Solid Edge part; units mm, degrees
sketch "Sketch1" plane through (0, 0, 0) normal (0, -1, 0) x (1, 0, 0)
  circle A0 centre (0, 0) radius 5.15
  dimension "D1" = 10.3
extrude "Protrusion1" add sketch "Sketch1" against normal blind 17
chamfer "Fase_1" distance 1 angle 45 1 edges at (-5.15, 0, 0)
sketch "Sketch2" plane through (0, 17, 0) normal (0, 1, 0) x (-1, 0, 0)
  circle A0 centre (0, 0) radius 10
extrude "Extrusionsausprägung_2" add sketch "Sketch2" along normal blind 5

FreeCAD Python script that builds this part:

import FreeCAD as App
import Part
import Sketcher
from FreeCAD import Vector
Q = App.Units.Quantity


def edges_at(feature, points):
    """Names of the edges that pass closest to the given points."""
    edges = feature.Shape.Edges
    near = lambda p: min(range(len(edges)), key=lambda i: edges[i].distToShape(Part.Vertex(*p))[0])
    return sorted({f"Edge{near(p) + 1}" for p in points})

doc = App.newDocument("Part")
body = doc.addObject("PartDesign::Body", "Body")

# Sketch on XZ plane
sketch1 = doc.addObject("Sketcher::SketchObject", "Sketch")
body.addObject(sketch1)
sketch1.AttachmentSupport = (doc.XZ_Plane, [""])
sketch1.MapMode = "FlatFace"
sketch1.addGeometry(Part.Circle(Vector(0, 0, 0), Vector(0, 0, 1), 5), False)
sketch1.addConstraint(Sketcher.Constraint("Coincident", 0, 3, -1, 1))
sketch1.addConstraint(Sketcher.Constraint("Diameter", 0, Q("10.3 mm")))
pad1 = doc.addObject("PartDesign::Pad", "Pad")
body.addObject(pad1)
pad1.Profile = sketch1
pad1.Length = 17
pad1.Reversed = True
doc.recompute()

chamfer = doc.addObject("PartDesign::Chamfer", "Chamfer")
body.addObject(chamfer)
chamfer.Base = (pad1, edges_at(pad1, [(-5.15, 0, 0)]))
chamfer.Size = 1

# Sketch on XZ plane
sketch2 = doc.addObject("Sketcher::SketchObject", "Sketch001")
body.addObject(sketch2)
sketch2.AttachmentSupport = (doc.XZ_Plane, [""])
sketch2.MapMode = "FlatFace"
sketch2.AttachmentOffset = App.Placement(Vector(0, 0, -17), App.Rotation())
sketch2.addGeometry(Part.Circle(Vector(0, 0, 0), Vector(0, 0, 1), 10), False)
sketch2.addConstraint(Sketcher.Constraint("Coincident", 0, 3, -1, 1))
sketch2.addConstraint(Sketcher.Constraint("Diameter", 0, Q("20 mm")))
pad2 = doc.addObject("PartDesign::Pad", "Pad001")
body.addObject(pad2)
pad2.Profile = sketch2
pad2.Length = 5
pad2.Reversed = True

doc.recompute()
